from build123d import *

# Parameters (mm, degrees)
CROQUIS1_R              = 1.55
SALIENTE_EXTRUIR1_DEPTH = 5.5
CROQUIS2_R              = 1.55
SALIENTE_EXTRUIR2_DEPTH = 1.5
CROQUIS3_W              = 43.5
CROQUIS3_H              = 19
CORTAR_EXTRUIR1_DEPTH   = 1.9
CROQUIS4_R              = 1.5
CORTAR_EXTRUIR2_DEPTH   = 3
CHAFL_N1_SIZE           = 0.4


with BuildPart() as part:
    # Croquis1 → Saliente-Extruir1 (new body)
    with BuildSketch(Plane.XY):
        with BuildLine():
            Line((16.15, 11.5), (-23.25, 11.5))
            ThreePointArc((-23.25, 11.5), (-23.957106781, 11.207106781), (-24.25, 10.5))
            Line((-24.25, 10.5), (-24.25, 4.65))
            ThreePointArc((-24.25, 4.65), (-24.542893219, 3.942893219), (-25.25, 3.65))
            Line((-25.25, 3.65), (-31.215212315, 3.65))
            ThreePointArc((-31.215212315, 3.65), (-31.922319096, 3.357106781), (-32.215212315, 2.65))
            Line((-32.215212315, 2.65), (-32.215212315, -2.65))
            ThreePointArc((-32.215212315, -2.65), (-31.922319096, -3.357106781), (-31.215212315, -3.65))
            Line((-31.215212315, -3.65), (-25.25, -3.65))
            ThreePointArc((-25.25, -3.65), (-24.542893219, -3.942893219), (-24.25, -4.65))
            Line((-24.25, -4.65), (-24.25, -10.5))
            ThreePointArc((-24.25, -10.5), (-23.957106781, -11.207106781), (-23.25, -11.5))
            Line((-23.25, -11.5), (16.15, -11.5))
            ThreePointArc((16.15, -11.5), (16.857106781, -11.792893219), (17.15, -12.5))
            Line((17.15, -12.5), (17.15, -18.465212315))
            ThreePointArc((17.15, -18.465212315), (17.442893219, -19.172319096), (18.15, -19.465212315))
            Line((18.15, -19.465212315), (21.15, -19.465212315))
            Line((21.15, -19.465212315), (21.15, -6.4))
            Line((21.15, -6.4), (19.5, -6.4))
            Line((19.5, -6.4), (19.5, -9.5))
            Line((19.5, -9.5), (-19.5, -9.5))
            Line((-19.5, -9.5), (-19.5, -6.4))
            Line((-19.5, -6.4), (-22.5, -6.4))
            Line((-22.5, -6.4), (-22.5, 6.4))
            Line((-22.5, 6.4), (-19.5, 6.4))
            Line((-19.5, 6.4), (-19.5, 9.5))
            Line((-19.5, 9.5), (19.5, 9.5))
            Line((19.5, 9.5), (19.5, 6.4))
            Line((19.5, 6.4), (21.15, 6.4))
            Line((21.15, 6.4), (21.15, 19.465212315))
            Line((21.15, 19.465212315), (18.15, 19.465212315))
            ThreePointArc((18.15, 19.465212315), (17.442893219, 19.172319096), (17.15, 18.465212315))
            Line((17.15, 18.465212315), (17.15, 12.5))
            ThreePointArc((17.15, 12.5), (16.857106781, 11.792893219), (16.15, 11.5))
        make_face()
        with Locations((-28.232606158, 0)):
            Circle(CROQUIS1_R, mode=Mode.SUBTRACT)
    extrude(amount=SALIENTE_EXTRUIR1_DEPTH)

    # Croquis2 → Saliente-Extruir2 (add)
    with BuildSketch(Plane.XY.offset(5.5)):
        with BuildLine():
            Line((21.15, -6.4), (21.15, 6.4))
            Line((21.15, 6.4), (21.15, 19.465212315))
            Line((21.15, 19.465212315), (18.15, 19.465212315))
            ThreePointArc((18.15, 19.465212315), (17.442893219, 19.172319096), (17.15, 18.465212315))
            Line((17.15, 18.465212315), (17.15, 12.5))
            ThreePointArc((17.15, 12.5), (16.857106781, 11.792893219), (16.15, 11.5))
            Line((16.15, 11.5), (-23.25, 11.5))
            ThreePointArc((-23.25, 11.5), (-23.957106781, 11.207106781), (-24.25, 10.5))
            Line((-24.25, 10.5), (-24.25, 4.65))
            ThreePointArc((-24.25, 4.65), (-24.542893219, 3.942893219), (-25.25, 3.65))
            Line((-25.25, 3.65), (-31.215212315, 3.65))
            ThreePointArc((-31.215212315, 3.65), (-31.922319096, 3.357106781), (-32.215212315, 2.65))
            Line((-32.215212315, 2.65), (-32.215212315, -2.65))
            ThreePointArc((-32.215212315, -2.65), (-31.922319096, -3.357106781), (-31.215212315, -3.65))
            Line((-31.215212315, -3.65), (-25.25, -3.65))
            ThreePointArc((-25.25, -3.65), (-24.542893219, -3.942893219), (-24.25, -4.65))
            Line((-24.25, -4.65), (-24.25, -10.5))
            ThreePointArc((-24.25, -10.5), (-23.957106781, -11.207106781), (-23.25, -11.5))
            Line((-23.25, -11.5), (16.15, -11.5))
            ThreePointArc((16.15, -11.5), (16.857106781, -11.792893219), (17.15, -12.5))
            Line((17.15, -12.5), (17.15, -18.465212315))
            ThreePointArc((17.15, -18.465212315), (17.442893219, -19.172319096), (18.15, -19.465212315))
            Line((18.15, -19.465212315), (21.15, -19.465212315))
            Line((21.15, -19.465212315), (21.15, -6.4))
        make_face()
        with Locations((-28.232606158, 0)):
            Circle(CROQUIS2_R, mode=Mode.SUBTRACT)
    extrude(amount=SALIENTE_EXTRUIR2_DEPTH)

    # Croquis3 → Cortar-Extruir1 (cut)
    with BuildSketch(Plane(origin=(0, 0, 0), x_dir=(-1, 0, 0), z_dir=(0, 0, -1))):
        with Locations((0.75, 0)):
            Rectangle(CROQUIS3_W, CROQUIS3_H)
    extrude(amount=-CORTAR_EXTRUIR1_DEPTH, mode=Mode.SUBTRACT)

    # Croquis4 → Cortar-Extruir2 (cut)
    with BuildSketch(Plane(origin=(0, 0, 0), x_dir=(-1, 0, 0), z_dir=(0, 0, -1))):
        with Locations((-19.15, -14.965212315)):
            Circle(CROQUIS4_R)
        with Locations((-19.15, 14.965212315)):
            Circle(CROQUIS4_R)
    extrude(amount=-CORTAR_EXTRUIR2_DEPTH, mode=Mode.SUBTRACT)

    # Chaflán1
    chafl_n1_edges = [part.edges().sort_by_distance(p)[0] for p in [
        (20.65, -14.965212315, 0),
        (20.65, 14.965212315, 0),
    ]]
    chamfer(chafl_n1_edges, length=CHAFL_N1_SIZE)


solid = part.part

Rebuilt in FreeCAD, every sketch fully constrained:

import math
import FreeCAD as App
import Part
import Sketcher
Q = App.Units.Quantity


def edges_at(feature, points):
    """Names of the edges that pass closest to the given points."""
    edges = feature.Shape.Edges
    near = lambda p: min(range(len(edges)), key=lambda i: edges[i].distToShape(Part.Vertex(*p))[0])
    return sorted({f"Edge{near(p) + 1}" for p in points})


def add_polygon(sketch, points):
    """Adds a closed chain of lines whose ends are joined by coincident constraints."""
    first, n = sketch.GeometryCount, len(points)
    for a, b in zip(points, points[1:] + points[:1]):
        sketch.addGeometry(Part.LineSegment(App.Vector(*a, 0), App.Vector(*b, 0)), False)
    for i in range(n):
        sketch.addConstraint(Sketcher.Constraint("Coincident", first + i, 2, first + (i + 1) % n, 1))

doc = App.newDocument("Part")
body = doc.addObject("PartDesign::Body", "Body")

# Sketch on XY plane
sketch1 = doc.addObject("Sketcher::SketchObject", "Sketch")
body.addObject(sketch1)
sketch1.AttachmentSupport = (doc.XY_Plane, [""])
sketch1.MapMode = "FlatFace"
sketch1.addGeometry(Part.LineSegment(App.Vector(16.15, 11.5, 0), App.Vector(-23.25, 11.5, 0)), False)
sketch1.addGeometry(Part.ArcOfCircle(Part.Circle(App.Vector(-23.25, 10.5, 0), App.Vector(0, 0, 1), 1), math.radians(90), math.radians(180)), False)
sketch1.addGeometry(Part.LineSegment(App.Vector(-24.25, 10.5, 0), App.Vector(-24.25, 4.65, 0)), False)
sketch1.addGeometry(Part.ArcOfCircle(Part.Circle(App.Vector(-25.25, 4.65, 0), App.Vector(0, 0, 1), 1), math.radians(-90), math.radians(0)), False)
sketch1.addGeometry(Part.LineSegment(App.Vector(-25.25, 3.65, 0), App.Vector(-31.215212, 3.65, 0)), False)
sketch1.addGeometry(Part.ArcOfCircle(Part.Circle(App.Vector(-31.215212, 2.65, 0), App.Vector(0, 0, 1), 1), math.radians(90), math.radians(180)), False)
sketch1.addGeometry(Part.LineSegment(App.Vector(-32.215212, 2.65, 0), App.Vector(-32.215212, -2.65, 0)), False)
sketch1.addGeometry(Part.ArcOfCircle(Part.Circle(App.Vector(-31.215212, -2.65, 0), App.Vector(0, 0, 1), 1), math.radians(-180), math.radians(-90)), False)
sketch1.addGeometry(Part.LineSegment(App.Vector(-31.215212, -3.65, 0), App.Vector(-25.25, -3.65, 0)), False)
sketch1.addGeometry(Part.ArcOfCircle(Part.Circle(App.Vector(-25.25, -4.65, 0), App.Vector(0, 0, 1), 1), math.radians(0), math.radians(90)), False)
sketch1.addGeometry(Part.LineSegment(App.Vector(-24.25, -4.65, 0), App.Vector(-24.25, -10.5, 0)), False)
sketch1.addGeometry(Part.ArcOfCircle(Part.Circle(App.Vector(-23.25, -10.5, 0), App.Vector(0, 0, 1), 1), math.radians(-180), math.radians(-90)), False)
sketch1.addGeometry(Part.LineSegment(App.Vector(-23.25, -11.5, 0), App.Vector(16.15, -11.5, 0)), False)
sketch1.addGeometry(Part.ArcOfCircle(Part.Circle(App.Vector(16.15, -12.5, 0), App.Vector(0, 0, 1), 1), math.radians(0), math.radians(90)), False)
sketch1.addGeometry(Part.LineSegment(App.Vector(17.15, -12.5, 0), App.Vector(17.15, -18.465212, 0)), False)
sketch1.addGeometry(Part.ArcOfCircle(Part.Circle(App.Vector(18.15, -18.465212, 0), App.Vector(0, 0, 1), 1), math.radians(-180), math.radians(-90)), False)
sketch1.addGeometry(Part.LineSegment(App.Vector(18.15, -19.465212, 0), App.Vector(21.15, -19.465212, 0)), False)
sketch1.addGeometry(Part.LineSegment(App.Vector(21.15, -19.465212, 0), App.Vector(21.15, -6.4, 0)), False)
sketch1.addGeometry(Part.LineSegment(App.Vector(21.15, -6.4, 0), App.Vector(19.5, -6.4, 0)), False)
sketch1.addGeometry(Part.LineSegment(App.Vector(19.5, -6.4, 0), App.Vector(19.5, -9.5, 0)), False)
sketch1.addGeometry(Part.LineSegment(App.Vector(19.5, -9.5, 0), App.Vector(-19.5, -9.5, 0)), False)
sketch1.addGeometry(Part.LineSegment(App.Vector(-19.5, -9.5, 0), App.Vector(-19.5, -6.4, 0)), False)
sketch1.addGeometry(Part.LineSegment(App.Vector(-19.5, -6.4, 0), App.Vector(-22.5, -6.4, 0)), False)
sketch1.addGeometry(Part.LineSegment(App.Vector(-22.5, -6.4, 0), App.Vector(-22.5, 6.4, 0)), False)
sketch1.addGeometry(Part.LineSegment(App.Vector(-22.5, 6.4, 0), App.Vector(-19.5, 6.4, 0)), False)
sketch1.addGeometry(Part.LineSegment(App.Vector(-19.5, 6.4, 0), App.Vector(-19.5, 9.5, 0)), False)
sketch1.addGeometry(Part.LineSegment(App.Vector(-19.5, 9.5, 0), App.Vector(19.5, 9.5, 0)), False)
sketch1.addGeometry(Part.LineSegment(App.Vector(19.5, 9.5, 0), App.Vector(19.5, 6.4, 0)), False)
sketch1.addGeometry(Part.LineSegment(App.Vector(19.5, 6.4, 0), App.Vector(21.15, 6.4, 0)), False)
sketch1.addGeometry(Part.LineSegment(App.Vector(21.15, 6.4, 0), App.Vector(21.15, 19.465212, 0)), False)
sketch1.addGeometry(Part.LineSegment(App.Vector(21.15, 19.465212, 0), App.Vector(18.15, 19.465212, 0)), False)
sketch1.addGeometry(Part.ArcOfCircle(Part.Circle(App.Vector(18.15, 18.465212, 0), App.Vector(0, 0, 1), 1), math.radians(90), math.radians(180)), False)
sketch1.addGeometry(Part.LineSegment(App.Vector(17.15, 18.465212, 0), App.Vector(17.15, 12.5, 0)), False)
sketch1.addGeometry(Part.ArcOfCircle(Part.Circle(App.Vector(16.15, 12.5, 0), App.Vector(0, 0, 1), 1), math.radians(-90), math.radians(0)), False)
sketch1.addGeometry(Part.Circle(App.Vector(-28.232606, 0, 0), App.Vector(0, 0, 1), 1.55), False)
sketch1.addConstraint(Sketcher.Constraint("Tangent", 0, 2, 1, 1))
sketch1.addConstraint(Sketcher.Constraint("Tangent", 1, 2, 2, 1))
sketch1.addConstraint(Sketcher.Constraint("Tangent", 2, 2, 3, 2))
sketch1.addConstraint(Sketcher.Constraint("Tangent", 3, 1, 4, 1))
sketch1.addConstraint(Sketcher.Constraint("Tangent", 4, 2, 5, 1))
sketch1.addConstraint(Sketcher.Constraint("Tangent", 5, 2, 6, 1))
sketch1.addConstraint(Sketcher.Constraint("Tangent", 6, 2, 7, 1))
sketch1.addConstraint(Sketcher.Constraint("Tangent", 7, 2, 8, 1))
sketch1.addConstraint(Sketcher.Constraint("Tangent", 8, 2, 9, 2))
sketch1.addConstraint(Sketcher.Constraint("Tangent", 9, 1, 10, 1))
sketch1.addConstraint(Sketcher.Constraint("Tangent", 10, 2, 11, 1))
sketch1.addConstraint(Sketcher.Constraint("Tangent", 11, 2, 12, 1))
sketch1.addConstraint(Sketcher.Constraint("Tangent", 12, 2, 13, 2))
sketch1.addConstraint(Sketcher.Constraint("Tangent", 13, 1, 14, 1))
sketch1.addConstraint(Sketcher.Constraint("Tangent", 14, 2, 15, 1))
sketch1.addConstraint(Sketcher.Constraint("Tangent", 15, 2, 16, 1))
sketch1.addConstraint(Sketcher.Constraint("Coincident", 16, 2, 17, 1))
sketch1.addConstraint(Sketcher.Constraint("Coincident", 17, 2, 18, 1))
sketch1.addConstraint(Sketcher.Constraint("Coincident", 18, 2, 19, 1))
sketch1.addConstraint(Sketcher.Constraint("Coincident", 19, 2, 20, 1))
sketch1.addConstraint(Sketcher.Constraint("Coincident", 20, 2, 21, 1))
sketch1.addConstraint(Sketcher.Constraint("Coincident", 21, 2, 22, 1))
sketch1.addConstraint(Sketcher.Constraint("Coincident", 22, 2, 23, 1))
sketch1.addConstraint(Sketcher.Constraint("Coincident", 23, 2, 24, 1))
sketch1.addConstraint(Sketcher.Constraint("Coincident", 24, 2, 25, 1))
sketch1.addConstraint(Sketcher.Constraint("Coincident", 25, 2, 26, 1))
sketch1.addConstraint(Sketcher.Constraint("Coincident", 26, 2, 27, 1))
sketch1.addConstraint(Sketcher.Constraint("Coincident", 27, 2, 28, 1))
sketch1.addConstraint(Sketcher.Constraint("Coincident", 28, 2, 29, 1))
sketch1.addConstraint(Sketcher.Constraint("Coincident", 29, 2, 30, 1))
sketch1.addConstraint(Sketcher.Constraint("Tangent", 30, 2, 31, 1))
sketch1.addConstraint(Sketcher.Constraint("Tangent", 31, 2, 32, 1))
sketch1.addConstraint(Sketcher.Constraint("Tangent", 32, 2, 33, 2))
sketch1.addConstraint(Sketcher.Constraint("Tangent", 33, 1, 0, 1))
sketch1.addConstraint(Sketcher.Constraint("Horizontal", 0))
sketch1.addConstraint(Sketcher.Constraint("Vertical", 2))
sketch1.addConstraint(Sketcher.Constraint("Horizontal", 4))
sketch1.addConstraint(Sketcher.Constraint("Vertical", 6))
sketch1.addConstraint(Sketcher.Constraint("Horizontal", 8))
sketch1.addConstraint(Sketcher.Constraint("Vertical", 10))
sketch1.addConstraint(Sketcher.Constraint("Horizontal", 12))
sketch1.addConstraint(Sketcher.Constraint("Vertical", 14))
sketch1.addConstraint(Sketcher.Constraint("Horizontal", 16))
sketch1.addConstraint(Sketcher.Constraint("Vertical", 17))
sketch1.addConstraint(Sketcher.Constraint("Horizontal", 18))
sketch1.addConstraint(Sketcher.Constraint("Vertical", 19))
sketch1.addConstraint(Sketcher.Constraint("Horizontal", 20))
sketch1.addConstraint(Sketcher.Constraint("Vertical", 21))
sketch1.addConstraint(Sketcher.Constraint("Horizontal", 22))
sketch1.addConstraint(Sketcher.Constraint("Vertical", 23))
sketch1.addConstraint(Sketcher.Constraint("Horizontal", 24))
sketch1.addConstraint(Sketcher.Constraint("Vertical", 25))
sketch1.addConstraint(Sketcher.Constraint("Horizontal", 26))
sketch1.addConstraint(Sketcher.Constraint("Vertical", 27))
sketch1.addConstraint(Sketcher.Constraint("Horizontal", 28))
sketch1.addConstraint(Sketcher.Constraint("Vertical", 29))
sketch1.addConstraint(Sketcher.Constraint("Horizontal", 30))
sketch1.addConstraint(Sketcher.Constraint("Vertical", 32))
sketch1.addConstraint(Sketcher.Constraint("Equal", 1, 3))
sketch1.addConstraint(Sketcher.Constraint("Equal", 3, 5))
sketch1.addConstraint(Sketcher.Constraint("Equal", 5, 7))
sketch1.addConstraint(Sketcher.Constraint("Equal", 7, 9))
sketch1.addConstraint(Sketcher.Constraint("Equal", 9, 11))
sketch1.addConstraint(Sketcher.Constraint("Equal", 11, 13))
sketch1.addConstraint(Sketcher.Constraint("Equal", 13, 15))
sketch1.addConstraint(Sketcher.Constraint("Equal", 15, 31))
sketch1.addConstraint(Sketcher.Constraint("Equal", 31, 33))
sketch1.addConstraint(Sketcher.Constraint("Symmetric", 18, 2, 24, 2, -1, 1))
sketch1.addConstraint(Sketcher.Constraint("Symmetric", 20, 2, 26, 2, -1, 1))
sketch1.addConstraint(Sketcher.Constraint("Symmetric", 18, 2, 21, 2, -2))
sketch1.addConstraint(Sketcher.Constraint("Symmetric", 3, 3, 9, 3, -1))
sketch1.addConstraint(Sketcher.Constraint("Symmetric", 15, 3, 31, 3, -1))
sketch1.addConstraint(Sketcher.Constraint("Symmetric", 17, 2, 28, 2, -1))
sketch1.addConstraint(Sketcher.Constraint("PointOnObject", 34, 3, -1))
sketch1.addConstraint(Sketcher.Constraint("Equal", 16, 22))
sketch1.addConstraint(Sketcher.Constraint("Equal", 2, 10))
sketch1.addConstraint(Sketcher.Constraint("Equal", 8, 14))
sketch1.addConstraint(Sketcher.Constraint("Radius", 1, Q("1 mm")))
sketch1.addConstraint(Sketcher.Constraint("Diameter", 34, Q("3.1 mm")))
sketch1.addConstraint(Sketcher.Constraint("DistanceX", 16, 1, 16, 2, Q("3 mm")))
sketch1.addConstraint(Sketcher.Constraint("DistanceX", 20, 2, 20, 1, Q("39 mm")))
sketch1.addConstraint(Sketcher.Constraint("DistanceX", 0, 2, 0, 1, Q("39.4 mm")))
sketch1.addConstraint(Sketcher.Constraint("DistanceY", 6, 2, 6, 1, Q("5.3 mm")))
sketch1.addConstraint(Sketcher.Constraint("DistanceY", 19, 2, 19, 1, Q("3.1 mm")))
sketch1.addConstraint(Sketcher.Constraint("DistanceY", 23, 1, 23, 2, Q("12.8 mm")))
sketch1.addConstraint(Sketcher.Constraint("DistanceY", 11, 3, 1, 3, Q("21 mm")))
sketch1.addConstraint(Sketcher.Constraint("DistanceX", 18, 2, 18, 1, Q("1.65 mm")))
sketch1.addConstraint(Sketcher.Constraint("DistanceX", 4, 2, 4, 1, Q("5.965212 mm")))
sketch1.addConstraint(Sketcher.Constraint("DistanceX", 34, 3, -1, 1, Q("28.232606 mm")))
pad1 = doc.addObject("PartDesign::Pad", "Pad")
body.addObject(pad1)
pad1.Profile = sketch1
pad1.Length = 5.5

# Sketch on XY plane
sketch2 = doc.addObject("Sketcher::SketchObject", "Sketch001")
body.addObject(sketch2)
sketch2.AttachmentSupport = (doc.XY_Plane, [""])
sketch2.MapMode = "FlatFace"
sketch2.AttachmentOffset = App.Placement(App.Vector(0, 0, 5.5), App.Rotation())
sketch2.addGeometry(Part.LineSegment(App.Vector(21.15, 19.465212, 0), App.Vector(18.15, 19.465212, 0)), False)
sketch2.addGeometry(Part.ArcOfCircle(Part.Circle(App.Vector(18.15, 18.465212, 0), App.Vector(0, 0, 1), 1), math.radians(90), math.radians(180)), False)
sketch2.addGeometry(Part.LineSegment(App.Vector(17.15, 18.465212, 0), App.Vector(17.15, 12.5, 0)), False)
sketch2.addGeometry(Part.ArcOfCircle(Part.Circle(App.Vector(16.15, 12.5, 0), App.Vector(0, 0, 1), 1), math.radians(-90), math.radians(0)), False)
sketch2.addGeometry(Part.LineSegment(App.Vector(16.15, 11.5, 0), App.Vector(-23.25, 11.5, 0)), False)
sketch2.addGeometry(Part.ArcOfCircle(Part.Circle(App.Vector(-23.25, 10.5, 0), App.Vector(0, 0, 1), 1), math.radians(90), math.radians(180)), False)
sketch2.addGeometry(Part.LineSegment(App.Vector(-24.25, 10.5, 0), App.Vector(-24.25, 4.65, 0)), False)
sketch2.addGeometry(Part.ArcOfCircle(Part.Circle(App.Vector(-25.25, 4.65, 0), App.Vector(0, 0, 1), 1), math.radians(-90), math.radians(0)), False)
sketch2.addGeometry(Part.LineSegment(App.Vector(-25.25, 3.65, 0), App.Vector(-31.215212, 3.65, 0)), False)
sketch2.addGeometry(Part.ArcOfCircle(Part.Circle(App.Vector(-31.215212, 2.65, 0), App.Vector(0, 0, 1), 1), math.radians(90), math.radians(180)), False)
sketch2.addGeometry(Part.LineSegment(App.Vector(-32.215212, 2.65, 0), App.Vector(-32.215212, -2.65, 0)), False)
sketch2.addGeometry(Part.ArcOfCircle(Part.Circle(App.Vector(-31.215212, -2.65, 0), App.Vector(0, 0, 1), 1), math.radians(-180), math.radians(-90)), False)
sketch2.addGeometry(Part.LineSegment(App.Vector(-31.215212, -3.65, 0), App.Vector(-25.25, -3.65, 0)), False)
sketch2.addGeometry(Part.ArcOfCircle(Part.Circle(App.Vector(-25.25, -4.65, 0), App.Vector(0, 0, 1), 1), math.radians(0), math.radians(90)), False)
sketch2.addGeometry(Part.LineSegment(App.Vector(-24.25, -4.65, 0), App.Vector(-24.25, -10.5, 0)), False)
sketch2.addGeometry(Part.ArcOfCircle(Part.Circle(App.Vector(-23.25, -10.5, 0), App.Vector(0, 0, 1), 1), math.radians(-180), math.radians(-90)), False)
sketch2.addGeometry(Part.LineSegment(App.Vector(-23.25, -11.5, 0), App.Vector(16.15, -11.5, 0)), False)
sketch2.addGeometry(Part.ArcOfCircle(Part.Circle(App.Vector(16.15, -12.5, 0), App.Vector(0, 0, 1), 1), math.radians(0), math.radians(90)), False)
sketch2.addGeometry(Part.LineSegment(App.Vector(17.15, -12.5, 0), App.Vector(17.15, -18.465212, 0)), False)
sketch2.addGeometry(Part.ArcOfCircle(Part.Circle(App.Vector(18.15, -18.465212, 0), App.Vector(0, 0, 1), 1), math.radians(-180), math.radians(-90)), False)
sketch2.addGeometry(Part.LineSegment(App.Vector(18.15, -19.465212, 0), App.Vector(21.15, -19.465212, 0)), False)
sketch2.addGeometry(Part.LineSegment(App.Vector(21.15, -19.465212, 0), App.Vector(21.15, 19.465212, 0)), False)
sketch2.addGeometry(Part.Circle(App.Vector(-28.232606, 0, 0), App.Vector(0, 0, 1), 1.55), False)
sketch2.addConstraint(Sketcher.Constraint("Tangent", 0, 2, 1, 1))
sketch2.addConstraint(Sketcher.Constraint("Tangent", 1, 2, 2, 1))
sketch2.addConstraint(Sketcher.Constraint("Tangent", 2, 2, 3, 2))
sketch2.addConstraint(Sketcher.Constraint("Tangent", 3, 1, 4, 1))
sketch2.addConstraint(Sketcher.Constraint("Tangent", 4, 2, 5, 1))
sketch2.addConstraint(Sketcher.Constraint("Tangent", 5, 2, 6, 1))
sketch2.addConstraint(Sketcher.Constraint("Tangent", 6, 2, 7, 2))
sketch2.addConstraint(Sketcher.Constraint("Tangent", 7, 1, 8, 1))
sketch2.addConstraint(Sketcher.Constraint("Tangent", 8, 2, 9, 1))
sketch2.addConstraint(Sketcher.Constraint("Tangent", 9, 2, 10, 1))
sketch2.addConstraint(Sketcher.Constraint("Tangent", 10, 2, 11, 1))
sketch2.addConstraint(Sketcher.Constraint("Tangent", 11, 2, 12, 1))
sketch2.addConstraint(Sketcher.Constraint("Tangent", 12, 2, 13, 2))
sketch2.addConstraint(Sketcher.Constraint("Tangent", 13, 1, 14, 1))
sketch2.addConstraint(Sketcher.Constraint("Tangent", 14, 2, 15, 1))
sketch2.addConstraint(Sketcher.Constraint("Tangent", 15, 2, 16, 1))
sketch2.addConstraint(Sketcher.Constraint("Tangent", 16, 2, 17, 2))
sketch2.addConstraint(Sketcher.Constraint("Tangent", 17, 1, 18, 1))
sketch2.addConstraint(Sketcher.Constraint("Tangent", 18, 2, 19, 1))
sketch2.addConstraint(Sketcher.Constraint("Tangent", 19, 2, 20, 1))
sketch2.addConstraint(Sketcher.Constraint("Coincident", 20, 2, 21, 1))
sketch2.addConstraint(Sketcher.Constraint("Coincident", 21, 2, 0, 1))
sketch2.addConstraint(Sketcher.Constraint("Horizontal", 0))
sketch2.addConstraint(Sketcher.Constraint("Vertical", 2))
sketch2.addConstraint(Sketcher.Constraint("Horizontal", 4))
sketch2.addConstraint(Sketcher.Constraint("Vertical", 6))
sketch2.addConstraint(Sketcher.Constraint("Horizontal", 8))
sketch2.addConstraint(Sketcher.Constraint("Vertical", 10))
sketch2.addConstraint(Sketcher.Constraint("Horizontal", 12))
sketch2.addConstraint(Sketcher.Constraint("Vertical", 14))
sketch2.addConstraint(Sketcher.Constraint("Horizontal", 16))
sketch2.addConstraint(Sketcher.Constraint("Vertical", 18))
sketch2.addConstraint(Sketcher.Constraint("Horizontal", 20))
sketch2.addConstraint(Sketcher.Constraint("Vertical", 21))
sketch2.addConstraint(Sketcher.Constraint("Equal", 1, 3))
sketch2.addConstraint(Sketcher.Constraint("Equal", 3, 5))
sketch2.addConstraint(Sketcher.Constraint("Equal", 5, 7))
sketch2.addConstraint(Sketcher.Constraint("Equal", 7, 9))
sketch2.addConstraint(Sketcher.Constraint("Equal", 9, 11))
sketch2.addConstraint(Sketcher.Constraint("Equal", 11, 13))
sketch2.addConstraint(Sketcher.Constraint("Equal", 13, 15))
sketch2.addConstraint(Sketcher.Constraint("Equal", 15, 17))
sketch2.addConstraint(Sketcher.Constraint("Equal", 17, 19))
sketch2.addConstraint(Sketcher.Constraint("Symmetric", 7, 3, 13, 3, -1))
sketch2.addConstraint(Sketcher.Constraint("Symmetric", 3, 3, 17, 3, -1))
sketch2.addConstraint(Sketcher.Constraint("PointOnObject", 22, 3, -1))
sketch2.addConstraint(Sketcher.Constraint("Equal", 12, 2))
sketch2.addConstraint(Sketcher.Constraint("Equal", 2, 18))
sketch2.addConstraint(Sketcher.Constraint("Radius", 1, Q("1 mm")))
sketch2.addConstraint(Sketcher.Constraint("Diameter", 22, Q("3.1 mm")))
sketch2.addConstraint(Sketcher.Constraint("DistanceX", 0, 2, 0, 1, Q("3 mm")))
sketch2.addConstraint(Sketcher.Constraint("DistanceX", 4, 2, 4, 1, Q("39.4 mm")))
sketch2.addConstraint(Sketcher.Constraint("DistanceY", 10, 2, 10, 1, Q("5.3 mm")))
sketch2.addConstraint(Sketcher.Constraint("DistanceY", 15, 3, 5, 3, Q("21 mm")))
sketch2.addConstraint(Sketcher.Constraint("DistanceX", -1, 1, 1, 3, Q("18.15 mm")))
sketch2.addConstraint(Sketcher.Constraint("DistanceX", 8, 2, 8, 1, Q("5.965212 mm")))
sketch2.addConstraint(Sketcher.Constraint("DistanceX", 22, 3, -1, 1, Q("28.232606 mm")))
pad2 = doc.addObject("PartDesign::Pad", "Pad001")
body.addObject(pad2)
pad2.Profile = sketch2
pad2.Length = 1.5

# Sketch on XY plane
sketch3 = doc.addObject("Sketcher::SketchObject", "Sketch002")
body.addObject(sketch3)
sketch3.AttachmentSupport = (doc.XY_Plane, [""])
sketch3.MapMode = "FlatFace"
add_polygon(sketch3, [(21, 9.5), (21, -9.5), (-22.5, -9.5), (-22.5, 9.5)])  # lines 0-3
sketch3.addConstraint(Sketcher.Constraint("Vertical", 0))
sketch3.addConstraint(Sketcher.Constraint("Horizontal", 1))
sketch3.addConstraint(Sketcher.Constraint("Vertical", 2))
sketch3.addConstraint(Sketcher.Constraint("Horizontal", 3))
sketch3.addConstraint(Sketcher.Constraint("DistanceY", 0, 2, 0, 1, Q("19 mm")))
sketch3.addConstraint(Sketcher.Constraint("DistanceX", 1, 2, 1, 1, Q("43.5 mm")))
sketch3.addConstraint(Sketcher.Constraint("DistanceX", -1, 1, 0, 2, Q("21 mm")))
sketch3.addConstraint(Sketcher.Constraint("DistanceY", 0, 2, -1, 1, Q("9.5 mm")))
pocket1 = doc.addObject("PartDesign::Pocket", "Pocket")
body.addObject(pocket1)
pocket1.Profile = sketch3
pocket1.Length = 1.9
pocket1.Reversed = True

# Sketch on XY plane
sketch4 = doc.addObject("Sketcher::SketchObject", "Sketch003")
body.addObject(sketch4)
sketch4.AttachmentSupport = (doc.XY_Plane, [""])
sketch4.MapMode = "FlatFace"
sketch4.addGeometry(Part.Circle(App.Vector(19.15, -14.965212, 0), App.Vector(0, 0, 1), 1.5), False)
sketch4.addGeometry(Part.Circle(App.Vector(19.15, 14.965212, 0), App.Vector(0, 0, 1), 1.5), False)
sketch4.addConstraint(Sketcher.Constraint("Equal", 0, 1))
sketch4.addConstraint(Sketcher.Constraint("Symmetric", 0, 3, 1, 3, -1))
sketch4.addConstraint(Sketcher.Constraint("Diameter", 0, Q("3 mm")))
sketch4.addConstraint(Sketcher.Constraint("DistanceX", -1, 1, 0, 3, Q("19.15 mm")))
sketch4.addConstraint(Sketcher.Constraint("DistanceY", 0, 3, -1, 1, Q("14.965212 mm")))
pocket2 = doc.addObject("PartDesign::Pocket", "Pocket001")
body.addObject(pocket2)
pocket2.Profile = sketch4
pocket2.Length = 3
pocket2.Reversed = True
doc.recompute()

chamfer = doc.addObject("PartDesign::Chamfer", "Chamfer")
body.addObject(chamfer)
chamfer.Base = (pocket2, edges_at(pocket2, [(20.65, -14.965, 0), (20.65, 14.965, 0)]))
chamfer.Size = 0.4

doc.recompute()
